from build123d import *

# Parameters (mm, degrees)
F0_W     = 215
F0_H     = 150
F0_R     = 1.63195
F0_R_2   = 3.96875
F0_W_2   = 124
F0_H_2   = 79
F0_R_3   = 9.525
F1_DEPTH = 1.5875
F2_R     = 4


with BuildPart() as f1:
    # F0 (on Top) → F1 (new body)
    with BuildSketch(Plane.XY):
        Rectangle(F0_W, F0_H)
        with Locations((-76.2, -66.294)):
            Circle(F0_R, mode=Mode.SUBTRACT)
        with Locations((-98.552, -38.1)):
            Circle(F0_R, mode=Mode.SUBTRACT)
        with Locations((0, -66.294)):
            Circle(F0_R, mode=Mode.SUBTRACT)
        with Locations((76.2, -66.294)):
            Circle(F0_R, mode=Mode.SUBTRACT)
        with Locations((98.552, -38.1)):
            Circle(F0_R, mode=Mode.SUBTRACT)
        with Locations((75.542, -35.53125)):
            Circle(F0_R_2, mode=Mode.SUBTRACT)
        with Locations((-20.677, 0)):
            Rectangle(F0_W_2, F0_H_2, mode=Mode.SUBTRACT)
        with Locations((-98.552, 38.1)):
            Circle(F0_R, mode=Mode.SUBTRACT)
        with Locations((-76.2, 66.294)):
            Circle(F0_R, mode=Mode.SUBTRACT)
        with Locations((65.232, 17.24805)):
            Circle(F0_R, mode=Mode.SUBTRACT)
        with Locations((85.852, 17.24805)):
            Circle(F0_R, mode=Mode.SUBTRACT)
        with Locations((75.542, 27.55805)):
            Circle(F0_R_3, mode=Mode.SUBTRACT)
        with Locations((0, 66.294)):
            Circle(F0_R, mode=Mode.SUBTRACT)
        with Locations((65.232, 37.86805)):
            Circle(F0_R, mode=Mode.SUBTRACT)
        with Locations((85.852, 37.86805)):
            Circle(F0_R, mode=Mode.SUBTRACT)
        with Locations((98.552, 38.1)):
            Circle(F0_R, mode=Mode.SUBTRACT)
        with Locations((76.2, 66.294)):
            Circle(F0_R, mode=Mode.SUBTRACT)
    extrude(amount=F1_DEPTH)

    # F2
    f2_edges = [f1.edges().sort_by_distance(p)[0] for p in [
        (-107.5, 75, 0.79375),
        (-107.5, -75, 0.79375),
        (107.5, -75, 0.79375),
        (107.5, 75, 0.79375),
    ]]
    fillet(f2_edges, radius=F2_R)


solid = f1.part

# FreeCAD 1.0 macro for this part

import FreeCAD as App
import Part
import Sketcher
Q = App.Units.Quantity


def edges_at(feature, points):
    """Names of the edges that pass closest to the given points."""
    edges = feature.Shape.Edges
    near = lambda p: min(range(len(edges)), key=lambda i: edges[i].distToShape(Part.Vertex(*p))[0])
    return sorted({f"Edge{near(p) + 1}" for p in points})

doc = App.newDocument("Part")
body = doc.addObject("PartDesign::Body", "Body")

# Sketch on XY plane
sketch1 = body.newObject("Sketcher::SketchObject", "Sketch")
sketch1.AttachmentSupport = (doc.getObject("XY_Plane"), [""])
sketch1.MapMode = "FlatFace"
sketch1.addGeometry([
    Part.LineSegment(App.Vector(-107.5, 75, 0), App.Vector(-107.5, -75, 0)),  # 0
    Part.LineSegment(App.Vector(-107.5, -75, 0), App.Vector(107.5, -75, 0)),  # 1
    Part.LineSegment(App.Vector(107.5, -75, 0), App.Vector(107.5, 75, 0)),  # 2
    Part.LineSegment(App.Vector(107.5, 75, 0), App.Vector(-107.5, 75, 0)),  # 3
    Part.Circle(App.Vector(-76.2, -66.3, 0), App.Vector(0, 0, 1), 1.6),  # 4
    Part.Circle(App.Vector(-98.6, -38.1, 0), App.Vector(0, 0, 1), 1.6),  # 5
    Part.Circle(App.Vector(0, -66.3, 0), App.Vector(0, 0, 1), 1.6),  # 6
    Part.Circle(App.Vector(76.2, -66.3, 0), App.Vector(0, 0, 1), 1.6),  # 7
    Part.Circle(App.Vector(75.5, -35.5, 0), App.Vector(0, 0, 1), 4),  # 8
    Part.Circle(App.Vector(98.6, -38.1, 0), App.Vector(0, 0, 1), 1.6),  # 9
    Part.LineSegment(App.Vector(41.3, -39.5, 0), App.Vector(-82.7, -39.5, 0)),  # 10
    Part.LineSegment(App.Vector(-82.7, -39.5, 0), App.Vector(-82.7, 39.5, 0)),  # 11
    Part.LineSegment(App.Vector(-82.7, 39.5, 0), App.Vector(41.3, 39.5, 0)),  # 12
    Part.LineSegment(App.Vector(41.3, 39.5, 0), App.Vector(41.3, -39.5, 0)),  # 13
    Part.Circle(App.Vector(-98.6, 38.1, 0), App.Vector(0, 0, 1), 1.6),  # 14
    Part.Circle(App.Vector(-76.2, 66.3, 0), App.Vector(0, 0, 1), 1.6),  # 15
    Part.Circle(App.Vector(65.2, 17.2, 0), App.Vector(0, 0, 1), 1.6),  # 16
    Part.Circle(App.Vector(85.9, 17.2, 0), App.Vector(0, 0, 1), 1.6),  # 17
    Part.Circle(App.Vector(75.5, 27.6, 0), App.Vector(0, 0, 1), 9.5),  # 18
    Part.Circle(App.Vector(0, 66.3, 0), App.Vector(0, 0, 1), 1.6),  # 19
    Part.Circle(App.Vector(65.2, 37.9, 0), App.Vector(0, 0, 1), 1.6),  # 20
    Part.Circle(App.Vector(85.9, 37.9, 0), App.Vector(0, 0, 1), 1.6),  # 21
    Part.Circle(App.Vector(98.6, 38.1, 0), App.Vector(0, 0, 1), 1.6),  # 22
    Part.Circle(App.Vector(76.2, 66.3, 0), App.Vector(0, 0, 1), 1.6),  # 23
], False)
sketch1.addConstraint([
    Sketcher.Constraint("Coincident", 0, 2, 1, 1),
    Sketcher.Constraint("Coincident", 1, 2, 2, 1),
    Sketcher.Constraint("Coincident", 2, 2, 3, 1),
    Sketcher.Constraint("Coincident", 3, 2, 0, 1),
    Sketcher.Constraint("Coincident", 10, 2, 11, 1),
    Sketcher.Constraint("Coincident", 11, 2, 12, 1),
    Sketcher.Constraint("Coincident", 12, 2, 13, 1),
    Sketcher.Constraint("Coincident", 13, 2, 10, 1),
    Sketcher.Constraint("Vertical", 0),
    Sketcher.Constraint("Horizontal", 1),
    Sketcher.Constraint("Vertical", 2),
    Sketcher.Constraint("Horizontal", 3),
    Sketcher.Constraint("Horizontal", 10),
    Sketcher.Constraint("Vertical", 11),
    Sketcher.Constraint("Horizontal", 12),
    Sketcher.Constraint("Vertical", 13),
    Sketcher.Constraint("Equal", 4, 5),
    Sketcher.Constraint("Equal", 5, 6),
    Sketcher.Constraint("Equal", 6, 7),
    Sketcher.Constraint("Equal", 7, 9),
    Sketcher.Constraint("Equal", 9, 14),
    Sketcher.Constraint("Equal", 14, 15),
    Sketcher.Constraint("Equal", 15, 16),
    Sketcher.Constraint("Equal", 16, 17),
    Sketcher.Constraint("Equal", 17, 19),
    Sketcher.Constraint("Equal", 19, 20),
    Sketcher.Constraint("Equal", 20, 21),
    Sketcher.Constraint("Equal", 21, 22),
    Sketcher.Constraint("Equal", 22, 23),
    Sketcher.Constraint("Symmetric", 9, 3, 14, 3, -1, 1),
    Sketcher.Constraint("Symmetric", 7, 3, 15, 3, -1, 1),
    Sketcher.Constraint("Symmetric", 6, 3, 19, 3, -1, 1),
    Sketcher.Constraint("Symmetric", 5, 3, 22, 3, -1, 1),
    Sketcher.Constraint("Symmetric", 4, 3, 23, 3, -1, 1),
    Sketcher.Constraint("Symmetric", 0, 2, 2, 2, -1, 1),
    Sketcher.Constraint("Symmetric", 4, 3, 7, 3, -2),
    Sketcher.Constraint("Symmetric", 5, 3, 9, 3, -2),
    Sketcher.Constraint("PointOnObject", 6, 3, -2),
    Sketcher.Constraint("Horizontal", 4, 3, 6, 3),
    Sketcher.Constraint("Horizontal", 16, 3, 17, 3),
    Sketcher.Constraint("Horizontal", 20, 3, 21, 3),
    Sketcher.Constraint("Vertical", 8, 3, 18, 3),
    Sketcher.Constraint("Vertical", 16, 3, 20, 3),
    Sketcher.Constraint("Vertical", 17, 3, 21, 3),
    Sketcher.Constraint("Diameter", 18, Q("19.05 mm")),
    Sketcher.Constraint("DistanceX", 1, 1, 1, 2, Q("215 mm")),
    Sketcher.Constraint("DistanceX", 10, 2, 10, 1, Q("124 mm")),
    Sketcher.Constraint("DistanceY", 0, 2, 0, 1, Q("150 mm")),
    Sketcher.Constraint("DistanceY", 11, 1, 11, 2, Q("79 mm")),
    Sketcher.Constraint("Diameter", 4, Q("3.2639 mm")),
    Sketcher.Constraint("Diameter", 8, Q("7.9375 mm")),
    Sketcher.Constraint("DistanceX", 4, 3, -1, 1, Q("76.2 mm")),
    Sketcher.Constraint("DistanceY", 5, 3, -1, 1, Q("38.1 mm")),
    Sketcher.Constraint("DistanceY", 10, 2, -1, 1, Q("39.5 mm")),
    Sketcher.Constraint("DistanceX", 17, 3, 9, 3, Q("12.7 mm")),
    Sketcher.Constraint("DistanceX", 8, 3, 9, 3, Q("23.01 mm")),
    Sketcher.Constraint("DistanceX", 16, 3, 8, 3, Q("10.31 mm")),
    Sketcher.Constraint("DistanceY", 16, 3, 18, 3, Q("10.31 mm")),
    Sketcher.Constraint("DistanceY", 18, 3, 20, 3, Q("10.31 mm")),
    Sketcher.Constraint("DistanceY", 4, 3, -1, 1, Q("66.294 mm")),
    Sketcher.Constraint("DistanceX", 5, 3, -1, 1, Q("98.552 mm")),
    Sketcher.Constraint("DistanceX", 10, 2, -1, 1, Q("82.677 mm")),
    Sketcher.Constraint("DistanceY", 8, 3, 16, 3, Q("52.7793 mm")),
    Sketcher.Constraint("DistanceY", 8, 3, -1, 1, Q("35.53125 mm")),
])
pad1 = body.newObject("PartDesign::Pad", "Pad")
pad1.Profile = sketch1
pad1.Length = 1.5875
doc.recompute()

fillet = body.newObject("PartDesign::Fillet", "Fillet")
fillet.Base = (pad1, edges_at(pad1, [
    (-107.5, 75, 0.794),
    (-107.5, -75, 0.794),
    (107.5, -75, 0.794),
    (107.5, 75, 0.794),
]))
fillet.Radius = 4

doc.recompute()
